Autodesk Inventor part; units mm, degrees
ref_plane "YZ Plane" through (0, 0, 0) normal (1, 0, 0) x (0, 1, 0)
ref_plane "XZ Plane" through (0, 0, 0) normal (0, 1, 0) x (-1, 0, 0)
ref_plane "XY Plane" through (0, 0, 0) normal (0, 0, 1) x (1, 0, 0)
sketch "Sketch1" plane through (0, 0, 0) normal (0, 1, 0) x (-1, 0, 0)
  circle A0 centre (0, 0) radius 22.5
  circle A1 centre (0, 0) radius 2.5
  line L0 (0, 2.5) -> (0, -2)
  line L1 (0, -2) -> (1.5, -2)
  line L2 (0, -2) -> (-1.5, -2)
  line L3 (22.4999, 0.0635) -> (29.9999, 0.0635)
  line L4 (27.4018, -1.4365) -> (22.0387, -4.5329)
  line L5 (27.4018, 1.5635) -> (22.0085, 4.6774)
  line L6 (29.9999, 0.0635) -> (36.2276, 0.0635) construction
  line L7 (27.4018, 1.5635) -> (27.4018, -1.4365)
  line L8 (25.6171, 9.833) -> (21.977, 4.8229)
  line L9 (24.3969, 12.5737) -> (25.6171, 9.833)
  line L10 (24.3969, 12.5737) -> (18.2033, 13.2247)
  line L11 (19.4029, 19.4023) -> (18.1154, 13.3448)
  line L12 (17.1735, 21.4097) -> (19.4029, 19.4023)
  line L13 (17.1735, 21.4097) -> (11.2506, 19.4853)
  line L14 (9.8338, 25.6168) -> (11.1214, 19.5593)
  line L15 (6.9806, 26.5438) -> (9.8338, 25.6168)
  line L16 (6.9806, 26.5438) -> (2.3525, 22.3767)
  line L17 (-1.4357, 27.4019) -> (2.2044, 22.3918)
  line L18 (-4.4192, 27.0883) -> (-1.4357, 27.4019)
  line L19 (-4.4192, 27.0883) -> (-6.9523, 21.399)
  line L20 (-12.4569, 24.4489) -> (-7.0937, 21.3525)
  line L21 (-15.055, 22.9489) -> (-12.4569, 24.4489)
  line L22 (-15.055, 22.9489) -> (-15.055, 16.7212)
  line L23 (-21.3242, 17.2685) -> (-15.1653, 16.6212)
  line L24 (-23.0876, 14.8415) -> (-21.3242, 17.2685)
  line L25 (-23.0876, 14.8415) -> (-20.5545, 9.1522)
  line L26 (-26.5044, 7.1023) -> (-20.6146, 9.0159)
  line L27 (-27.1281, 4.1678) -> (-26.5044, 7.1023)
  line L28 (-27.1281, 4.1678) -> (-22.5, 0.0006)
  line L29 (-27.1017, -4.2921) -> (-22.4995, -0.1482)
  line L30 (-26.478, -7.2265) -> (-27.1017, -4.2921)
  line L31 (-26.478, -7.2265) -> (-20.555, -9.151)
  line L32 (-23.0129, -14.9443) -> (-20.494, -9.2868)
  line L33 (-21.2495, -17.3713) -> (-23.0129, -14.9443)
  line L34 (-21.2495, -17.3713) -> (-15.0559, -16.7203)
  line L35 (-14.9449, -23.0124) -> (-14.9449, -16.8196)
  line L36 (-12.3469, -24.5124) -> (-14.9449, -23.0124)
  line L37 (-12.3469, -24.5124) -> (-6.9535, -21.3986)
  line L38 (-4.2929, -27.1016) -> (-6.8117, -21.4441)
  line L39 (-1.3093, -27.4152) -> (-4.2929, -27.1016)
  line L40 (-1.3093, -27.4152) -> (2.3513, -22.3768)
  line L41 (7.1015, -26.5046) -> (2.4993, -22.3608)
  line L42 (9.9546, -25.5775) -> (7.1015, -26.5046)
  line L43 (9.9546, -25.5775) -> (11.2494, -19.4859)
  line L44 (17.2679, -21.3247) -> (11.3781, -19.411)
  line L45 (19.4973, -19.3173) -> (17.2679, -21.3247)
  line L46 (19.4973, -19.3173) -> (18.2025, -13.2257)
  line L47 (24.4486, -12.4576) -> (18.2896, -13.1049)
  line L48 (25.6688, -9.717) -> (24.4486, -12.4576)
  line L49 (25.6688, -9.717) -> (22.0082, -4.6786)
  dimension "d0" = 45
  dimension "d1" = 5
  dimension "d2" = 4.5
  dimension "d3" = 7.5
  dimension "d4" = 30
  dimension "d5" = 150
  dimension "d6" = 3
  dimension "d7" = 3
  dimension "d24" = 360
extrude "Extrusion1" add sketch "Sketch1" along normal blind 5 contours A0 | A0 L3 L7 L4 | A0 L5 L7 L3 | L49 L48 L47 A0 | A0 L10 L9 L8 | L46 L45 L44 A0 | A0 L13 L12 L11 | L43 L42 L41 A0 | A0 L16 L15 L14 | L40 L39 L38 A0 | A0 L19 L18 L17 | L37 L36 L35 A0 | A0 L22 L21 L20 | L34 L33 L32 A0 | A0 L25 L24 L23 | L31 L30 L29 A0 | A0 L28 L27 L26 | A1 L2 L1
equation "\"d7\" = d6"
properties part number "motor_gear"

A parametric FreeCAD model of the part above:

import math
import FreeCAD as App
import Part
import Sketcher

V = App.Vector
Q = App.Units.Quantity

doc = App.newDocument("Part")
body = doc.addObject("PartDesign::Body", "Body")

# Sketch on XZ plane
sketch1 = body.newObject("Sketcher::SketchObject", "Sketch")
sketch1.AttachmentSupport = (doc.getObject("XZ_Plane"), [""])
sketch1.MapMode = "FlatFace"
sketch1.addGeometry(Part.ArcOfCircle(Part.Circle(V(0, 0, 0), V(0, 0, 1), 22.5), math.radians(-168.38), math.radians(-168)), False)
sketch1.addGeometry(Part.LineSegment(V(-22.04, -4.53, 0), V(-27.4, -1.44, 0)), False)
sketch1.addGeometry(Part.LineSegment(V(-27.4, -1.44, 0), V(-27.4, 1.56, 0)), False)
sketch1.addGeometry(Part.LineSegment(V(-27.4, 1.56, 0), V(-22.01, 4.68, 0)), False)
sketch1.addGeometry(Part.ArcOfCircle(Part.Circle(V(0, 0, 0), V(0, 0, 1), 22.5), math.radians(167.62), math.radians(168)), False)
sketch1.addGeometry(Part.LineSegment(V(-21.98, 4.82, 0), V(-25.62, 9.83, 0)), False)
sketch1.addGeometry(Part.LineSegment(V(-25.62, 9.83, 0), V(-24.4, 12.57, 0)), False)
sketch1.addGeometry(Part.LineSegment(V(-24.4, 12.57, 0), V(-18.2, 13.22, 0)), False)
sketch1.addGeometry(Part.ArcOfCircle(Part.Circle(V(0, 0, 0), V(0, 0, 1), 22.5), math.radians(143.62), math.radians(144)), False)
sketch1.addGeometry(Part.LineSegment(V(-18.12, 13.34, 0), V(-19.4, 19.4, 0)), False)
sketch1.addGeometry(Part.LineSegment(V(-19.4, 19.4, 0), V(-17.17, 21.41, 0)), False)
sketch1.addGeometry(Part.LineSegment(V(-17.17, 21.41, 0), V(-11.25, 19.49, 0)), False)
sketch1.addGeometry(Part.ArcOfCircle(Part.Circle(V(0, 0, 0), V(0, 0, 1), 22.5), math.radians(119.62), math.radians(120)), False)
sketch1.addGeometry(Part.LineSegment(V(-11.12, 19.56, 0), V(-9.83, 25.62, 0)), False)
sketch1.addGeometry(Part.LineSegment(V(-9.83, 25.62, 0), V(-6.98, 26.54, 0)), False)
sketch1.addGeometry(Part.LineSegment(V(-6.98, 26.54, 0), V(-2.35, 22.38, 0)), False)
sketch1.addGeometry(Part.ArcOfCircle(Part.Circle(V(0, 0, 0), V(0, 0, 1), 22.5), math.radians(95.62), math.radians(96)), False)
sketch1.addGeometry(Part.LineSegment(V(-2.2, 22.39, 0), V(1.44, 27.4, 0)), False)
sketch1.addGeometry(Part.LineSegment(V(1.44, 27.4, 0), V(4.42, 27.09, 0)), False)
sketch1.addGeometry(Part.LineSegment(V(4.42, 27.09, 0), V(6.95, 21.4, 0)), False)
sketch1.addGeometry(Part.ArcOfCircle(Part.Circle(V(0, 0, 0), V(0, 0, 1), 22.5), math.radians(71.62), math.radians(72)), False)
sketch1.addGeometry(Part.LineSegment(V(7.09, 21.35, 0), V(12.46, 24.45, 0)), False)
sketch1.addGeometry(Part.LineSegment(V(12.46, 24.45, 0), V(15.05, 22.95, 0)), False)
sketch1.addGeometry(Part.LineSegment(V(15.05, 22.95, 0), V(15.05, 16.72, 0)), False)
sketch1.addGeometry(Part.ArcOfCircle(Part.Circle(V(0, 0, 0), V(0, 0, 1), 22.5), math.radians(47.62), math.radians(48)), False)
sketch1.addGeometry(Part.LineSegment(V(15.17, 16.62, 0), V(21.32, 17.27, 0)), False)
sketch1.addGeometry(Part.LineSegment(V(21.32, 17.27, 0), V(23.09, 14.84, 0)), False)
sketch1.addGeometry(Part.LineSegment(V(23.09, 14.84, 0), V(20.55, 9.15, 0)), False)
sketch1.addGeometry(Part.ArcOfCircle(Part.Circle(V(0, 0, 0), V(0, 0, 1), 22.5), math.radians(23.62), math.radians(24)), False)
sketch1.addGeometry(Part.LineSegment(V(20.61, 9.02, 0), V(26.5, 7.1, 0)), False)
sketch1.addGeometry(Part.LineSegment(V(26.5, 7.1, 0), V(27.13, 4.17, 0)), False)
sketch1.addGeometry(Part.LineSegment(V(27.13, 4.17, 0), V(22.5, 0, 0)), False)
sketch1.addGeometry(Part.ArcOfCircle(Part.Circle(V(0, 0, 0), V(0, 0, 1), 22.5), math.radians(-0.38), math.radians(0)), False)
sketch1.addGeometry(Part.LineSegment(V(22.5, -0.15, 0), V(27.1, -4.29, 0)), False)
sketch1.addGeometry(Part.LineSegment(V(27.1, -4.29, 0), V(26.48, -7.23, 0)), False)
sketch1.addGeometry(Part.LineSegment(V(26.48, -7.23, 0), V(20.55, -9.15, 0)), False)
sketch1.addGeometry(Part.ArcOfCircle(Part.Circle(V(0, 0, 0), V(0, 0, 1), 22.5), math.radians(-24.38), math.radians(-24)), False)
sketch1.addGeometry(Part.LineSegment(V(20.49, -9.29, 0), V(23.01, -14.94, 0)), False)
sketch1.addGeometry(Part.LineSegment(V(23.01, -14.94, 0), V(21.25, -17.37, 0)), False)
sketch1.addGeometry(Part.LineSegment(V(21.25, -17.37, 0), V(15.06, -16.72, 0)), False)
sketch1.addGeometry(Part.ArcOfCircle(Part.Circle(V(0, 0, 0), V(0, 0, 1), 22.5), math.radians(-48.38), math.radians(-48)), False)
sketch1.addGeometry(Part.LineSegment(V(14.94, -16.82, 0), V(14.94, -23.01, 0)), False)
sketch1.addGeometry(Part.LineSegment(V(14.94, -23.01, 0), V(12.35, -24.51, 0)), False)
sketch1.addGeometry(Part.LineSegment(V(12.35, -24.51, 0), V(6.95, -21.4, 0)), False)
sketch1.addGeometry(Part.ArcOfCircle(Part.Circle(V(0, 0, 0), V(0, 0, 1), 22.5), math.radians(-72.38), math.radians(-72)), False)
sketch1.addGeometry(Part.LineSegment(V(6.81, -21.44, 0), V(4.29, -27.1, 0)), False)
sketch1.addGeometry(Part.LineSegment(V(4.29, -27.1, 0), V(1.31, -27.42, 0)), False)
sketch1.addGeometry(Part.LineSegment(V(1.31, -27.42, 0), V(-2.35, -22.38, 0)), False)
sketch1.addGeometry(Part.ArcOfCircle(Part.Circle(V(0, 0, 0), V(0, 0, 1), 22.5), math.radians(-96.38), math.radians(-96)), False)
sketch1.addGeometry(Part.LineSegment(V(-2.5, -22.36, 0), V(-7.1, -26.5, 0)), False)
sketch1.addGeometry(Part.LineSegment(V(-7.1, -26.5, 0), V(-9.95, -25.58, 0)), False)
sketch1.addGeometry(Part.LineSegment(V(-9.95, -25.58, 0), V(-11.25, -19.49, 0)), False)
sketch1.addGeometry(Part.ArcOfCircle(Part.Circle(V(0, 0, 0), V(0, 0, 1), 22.5), math.radians(-120.38), math.radians(-120)), False)
sketch1.addGeometry(Part.LineSegment(V(-11.38, -19.41, 0), V(-17.27, -21.32, 0)), False)
sketch1.addGeometry(Part.LineSegment(V(-17.27, -21.32, 0), V(-19.5, -19.32, 0)), False)
sketch1.addGeometry(Part.LineSegment(V(-19.5, -19.32, 0), V(-18.2, -13.23, 0)), False)
sketch1.addGeometry(Part.ArcOfCircle(Part.Circle(V(0, 0, 0), V(0, 0, 1), 22.5), math.radians(-144.38), math.radians(-144)), False)
sketch1.addGeometry(Part.LineSegment(V(-18.29, -13.1, 0), V(-24.45, -12.46, 0)), False)
sketch1.addGeometry(Part.LineSegment(V(-24.45, -12.46, 0), V(-25.67, -9.72, 0)), False)
sketch1.addGeometry(Part.LineSegment(V(-25.67, -9.72, 0), V(-22.01, -4.68, 0)), False)
sketch1.addGeometry(Part.LineSegment(V(-1.5, -2, 0), V(1.5, -2, 0)), False)
sketch1.addGeometry(Part.ArcOfCircle(Part.Circle(V(0, 0, 0), V(0, 0, 1), 2.5), math.radians(-53), math.radians(233)), False)
sketch1.addConstraint(Sketcher.Constraint("Coincident", 0, 1, 1, 1))
sketch1.addConstraint(Sketcher.Constraint("Coincident", 1, 2, 2, 1))
sketch1.addConstraint(Sketcher.Constraint("Coincident", 2, 2, 3, 1))
sketch1.addConstraint(Sketcher.Constraint("Coincident", 3, 2, 4, 2))
sketch1.addConstraint(Sketcher.Constraint("Coincident", 4, 1, 5, 1))
sketch1.addConstraint(Sketcher.Constraint("Coincident", 5, 2, 6, 1))
sketch1.addConstraint(Sketcher.Constraint("Coincident", 6, 2, 7, 1))
sketch1.addConstraint(Sketcher.Constraint("Coincident", 7, 2, 8, 2))
sketch1.addConstraint(Sketcher.Constraint("Coincident", 8, 1, 9, 1))
sketch1.addConstraint(Sketcher.Constraint("Coincident", 9, 2, 10, 1))
sketch1.addConstraint(Sketcher.Constraint("Coincident", 10, 2, 11, 1))
sketch1.addConstraint(Sketcher.Constraint("Coincident", 11, 2, 12, 2))
sketch1.addConstraint(Sketcher.Constraint("Coincident", 12, 1, 13, 1))
sketch1.addConstraint(Sketcher.Constraint("Coincident", 13, 2, 14, 1))
sketch1.addConstraint(Sketcher.Constraint("Coincident", 14, 2, 15, 1))
sketch1.addConstraint(Sketcher.Constraint("Coincident", 15, 2, 16, 2))
sketch1.addConstraint(Sketcher.Constraint("Coincident", 16, 1, 17, 1))
sketch1.addConstraint(Sketcher.Constraint("Coincident", 17, 2, 18, 1))
sketch1.addConstraint(Sketcher.Constraint("Coincident", 18, 2, 19, 1))
sketch1.addConstraint(Sketcher.Constraint("Coincident", 19, 2, 20, 2))
sketch1.addConstraint(Sketcher.Constraint("Coincident", 20, 1, 21, 1))
sketch1.addConstraint(Sketcher.Constraint("Coincident", 21, 2, 22, 1))
sketch1.addConstraint(Sketcher.Constraint("Coincident", 22, 2, 23, 1))
sketch1.addConstraint(Sketcher.Constraint("Coincident", 23, 2, 24, 2))
sketch1.addConstraint(Sketcher.Constraint("Coincident", 24, 1, 25, 1))
sketch1.addConstraint(Sketcher.Constraint("Coincident", 25, 2, 26, 1))
sketch1.addConstraint(Sketcher.Constraint("Coincident", 26, 2, 27, 1))
sketch1.addConstraint(Sketcher.Constraint("Coincident", 27, 2, 28, 2))
sketch1.addConstraint(Sketcher.Constraint("Coincident", 28, 1, 29, 1))
sketch1.addConstraint(Sketcher.Constraint("Coincident", 29, 2, 30, 1))
sketch1.addConstraint(Sketcher.Constraint("Coincident", 30, 2, 31, 1))
sketch1.addConstraint(Sketcher.Constraint("Coincident", 31, 2, 32, 2))
sketch1.addConstraint(Sketcher.Constraint("Coincident", 32, 1, 33, 1))
sketch1.addConstraint(Sketcher.Constraint("Coincident", 33, 2, 34, 1))
sketch1.addConstraint(Sketcher.Constraint("Coincident", 34, 2, 35, 1))
sketch1.addConstraint(Sketcher.Constraint("Coincident", 35, 2, 36, 2))
sketch1.addConstraint(Sketcher.Constraint("Coincident", 36, 1, 37, 1))
sketch1.addConstraint(Sketcher.Constraint("Coincident", 37, 2, 38, 1))
sketch1.addConstraint(Sketcher.Constraint("Coincident", 38, 2, 39, 1))
sketch1.addConstraint(Sketcher.Constraint("Coincident", 39, 2, 40, 2))
sketch1.addConstraint(Sketcher.Constraint("Coincident", 40, 1, 41, 1))
sketch1.addConstraint(Sketcher.Constraint("Coincident", 41, 2, 42, 1))
sketch1.addConstraint(Sketcher.Constraint("Coincident", 42, 2, 43, 1))
sketch1.addConstraint(Sketcher.Constraint("Coincident", 43, 2, 44, 2))
sketch1.addConstraint(Sketcher.Constraint("Coincident", 44, 1, 45, 1))
sketch1.addConstraint(Sketcher.Constraint("Coincident", 45, 2, 46, 1))
sketch1.addConstraint(Sketcher.Constraint("Coincident", 46, 2, 47, 1))
sketch1.addConstraint(Sketcher.Constraint("Coincident", 47, 2, 48, 2))
sketch1.addConstraint(Sketcher.Constraint("Coincident", 48, 1, 49, 1))
sketch1.addConstraint(Sketcher.Constraint("Coincident", 49, 2, 50, 1))
sketch1.addConstraint(Sketcher.Constraint("Coincident", 50, 2, 51, 1))
sketch1.addConstraint(Sketcher.Constraint("Coincident", 51, 2, 52, 2))
sketch1.addConstraint(Sketcher.Constraint("Coincident", 52, 1, 53, 1))
sketch1.addConstraint(Sketcher.Constraint("Coincident", 53, 2, 54, 1))
sketch1.addConstraint(Sketcher.Constraint("Coincident", 54, 2, 55, 1))
sketch1.addConstraint(Sketcher.Constraint("Coincident", 55, 2, 56, 2))
sketch1.addConstraint(Sketcher.Constraint("Coincident", 56, 1, 57, 1))
sketch1.addConstraint(Sketcher.Constraint("Coincident", 57, 2, 58, 1))
sketch1.addConstraint(Sketcher.Constraint("Coincident", 58, 2, 59, 1))
sketch1.addConstraint(Sketcher.Constraint("Coincident", 59, 2, 0, 2))
sketch1.addConstraint(Sketcher.Constraint("Coincident", 60, 1, 61, 2))
sketch1.addConstraint(Sketcher.Constraint("Coincident", 61, 1, 60, 2))
sketch1.addConstraint(Sketcher.Constraint("Vertical", 2))
sketch1.addConstraint(Sketcher.Constraint("Vertical", 23))
sketch1.addConstraint(Sketcher.Constraint("Vertical", 41))
sketch1.addConstraint(Sketcher.Constraint("Horizontal", 60))
sketch1.addConstraint(Sketcher.Constraint("Coincident", 0, 3, -1, 1))
sketch1.addConstraint(Sketcher.Constraint("Coincident", 4, 3, -1, 1))
sketch1.addConstraint(Sketcher.Constraint("Coincident", 8, 3, -1, 1))
sketch1.addConstraint(Sketcher.Constraint("Coincident", 12, 3, -1, 1))
sketch1.addConstraint(Sketcher.Constraint("Coincident", 16, 3, -1, 1))
sketch1.addConstraint(Sketcher.Constraint("Coincident", 20, 3, -1, 1))
sketch1.addConstraint(Sketcher.Constraint("Coincident", 24, 3, -1, 1))
sketch1.addConstraint(Sketcher.Constraint("Coincident", 28, 3, -1, 1))
sketch1.addConstraint(Sketcher.Constraint("Coincident", 32, 3, -1, 1))
sketch1.addConstraint(Sketcher.Constraint("Coincident", 36, 3, -1, 1))
sketch1.addConstraint(Sketcher.Constraint("Coincident", 40, 3, -1, 1))
sketch1.addConstraint(Sketcher.Constraint("Coincident", 44, 3, -1, 1))
sketch1.addConstraint(Sketcher.Constraint("Coincident", 48, 3, -1, 1))
sketch1.addConstraint(Sketcher.Constraint("Coincident", 52, 3, -1, 1))
sketch1.addConstraint(Sketcher.Constraint("Coincident", 56, 3, -1, 1))
sketch1.addConstraint(Sketcher.Constraint("Coincident", 61, 3, -1, 1))
sketch1.addConstraint(Sketcher.Constraint("Equal", 0, 4))
sketch1.addConstraint(Sketcher.Constraint("Equal", 4, 8))
sketch1.addConstraint(Sketcher.Constraint("Equal", 8, 12))
sketch1.addConstraint(Sketcher.Constraint("Equal", 12, 16))
sketch1.addConstraint(Sketcher.Constraint("Equal", 16, 20))
sketch1.addConstraint(Sketcher.Constraint("Equal", 20, 24))
sketch1.addConstraint(Sketcher.Constraint("Equal", 24, 28))
sketch1.addConstraint(Sketcher.Constraint("Equal", 28, 32))
sketch1.addConstraint(Sketcher.Constraint("Equal", 32, 36))
sketch1.addConstraint(Sketcher.Constraint("Equal", 36, 40))
sketch1.addConstraint(Sketcher.Constraint("Equal", 40, 44))
sketch1.addConstraint(Sketcher.Constraint("Equal", 44, 48))
sketch1.addConstraint(Sketcher.Constraint("Equal", 48, 52))
sketch1.addConstraint(Sketcher.Constraint("Equal", 52, 56))
sketch1.addConstraint(Sketcher.Constraint("Parallel", 3, 21))
sketch1.addConstraint(Sketcher.Constraint("Parallel", 1, 22))
sketch1.addConstraint(Sketcher.Constraint("Parallel", 7, 25))
sketch1.addConstraint(Sketcher.Constraint("Parallel", 5, 26))
sketch1.addConstraint(Sketcher.Constraint("Parallel", 6, 27))
sketch1.addConstraint(Sketcher.Constraint("Parallel", 11, 29))
sketch1.addConstraint(Sketcher.Constraint("Parallel", 9, 30))
sketch1.addConstraint(Sketcher.Constraint("Parallel", 10, 31))
sketch1.addConstraint(Sketcher.Constraint("Parallel", 15, 33))
sketch1.addConstraint(Sketcher.Constraint("Parallel", 13, 34))
sketch1.addConstraint(Sketcher.Constraint("Parallel", 14, 35))
sketch1.addConstraint(Sketcher.Constraint("Parallel", 19, 37))
sketch1.addConstraint(Sketcher.Constraint("Parallel", 17, 38))
sketch1.addConstraint(Sketcher.Constraint("Parallel", 18, 39))
sketch1.addConstraint(Sketcher.Constraint("Parallel", 21, 42))
sketch1.addConstraint(Sketcher.Constraint("Parallel", 22, 43))
sketch1.addConstraint(Sketcher.Constraint("Parallel", 27, 45))
sketch1.addConstraint(Sketcher.Constraint("Parallel", 25, 46))
sketch1.addConstraint(Sketcher.Constraint("Parallel", 26, 47))
sketch1.addConstraint(Sketcher.Constraint("Parallel", 31, 49))
sketch1.addConstraint(Sketcher.Constraint("Parallel", 29, 50))
sketch1.addConstraint(Sketcher.Constraint("Parallel", 30, 51))
sketch1.addConstraint(Sketcher.Constraint("Parallel", 35, 53))
sketch1.addConstraint(Sketcher.Constraint("Parallel", 33, 54))
sketch1.addConstraint(Sketcher.Constraint("Parallel", 34, 55))
sketch1.addConstraint(Sketcher.Constraint("Parallel", 39, 57))
sketch1.addConstraint(Sketcher.Constraint("Parallel", 37, 58))
sketch1.addConstraint(Sketcher.Constraint("Parallel", 38, 59))
sketch1.addConstraint(Sketcher.Constraint("Equal", 60, 2))
sketch1.addConstraint(Sketcher.Constraint("Equal", 1, 5))
sketch1.addConstraint(Sketcher.Constraint("Equal", 3, 7))
sketch1.addConstraint(Sketcher.Constraint("Equal", 5, 9))
sketch1.addConstraint(Sketcher.Constraint("Equal", 6, 10))
sketch1.addConstraint(Sketcher.Constraint("Equal", 7, 11))
sketch1.addConstraint(Sketcher.Constraint("Equal", 9, 13))
sketch1.addConstraint(Sketcher.Constraint("Equal", 10, 14))
sketch1.addConstraint(Sketcher.Constraint("Equal", 11, 15))
sketch1.addConstraint(Sketcher.Constraint("Equal", 13, 17))
sketch1.addConstraint(Sketcher.Constraint("Equal", 14, 18))
sketch1.addConstraint(Sketcher.Constraint("Equal", 15, 19))
sketch1.addConstraint(Sketcher.Constraint("Equal", 17, 21))
sketch1.addConstraint(Sketcher.Constraint("Equal", 18, 22))
sketch1.addConstraint(Sketcher.Constraint("Equal", 21, 25))
sketch1.addConstraint(Sketcher.Constraint("Equal", 22, 26))
sketch1.addConstraint(Sketcher.Constraint("Equal", 19, 27))
sketch1.addConstraint(Sketcher.Constraint("Equal", 25, 29))
sketch1.addConstraint(Sketcher.Constraint("Equal", 26, 30))
sketch1.addConstraint(Sketcher.Constraint("Equal", 27, 31))
sketch1.addConstraint(Sketcher.Constraint("Equal", 29, 33))
sketch1.addConstraint(Sketcher.Constraint("Equal", 30, 34))
sketch1.addConstraint(Sketcher.Constraint("Equal", 31, 35))
sketch1.addConstraint(Sketcher.Constraint("Equal", 33, 37))
sketch1.addConstraint(Sketcher.Constraint("Equal", 34, 38))
sketch1.addConstraint(Sketcher.Constraint("Equal", 35, 39))
sketch1.addConstraint(Sketcher.Constraint("Equal", 38, 42))
sketch1.addConstraint(Sketcher.Constraint("Equal", 39, 43))
sketch1.addConstraint(Sketcher.Constraint("Equal", 37, 45))
sketch1.addConstraint(Sketcher.Constraint("Equal", 42, 46))
sketch1.addConstraint(Sketcher.Constraint("Equal", 43, 47))
sketch1.addConstraint(Sketcher.Constraint("Equal", 45, 49))
sketch1.addConstraint(Sketcher.Constraint("Equal", 46, 50))
sketch1.addConstraint(Sketcher.Constraint("Equal", 47, 51))
sketch1.addConstraint(Sketcher.Constraint("Equal", 49, 53))
sketch1.addConstraint(Sketcher.Constraint("Equal", 50, 54))
sketch1.addConstraint(Sketcher.Constraint("Equal", 51, 55))
sketch1.addConstraint(Sketcher.Constraint("Equal", 53, 57))
sketch1.addConstraint(Sketcher.Constraint("Equal", 54, 58))
sketch1.addConstraint(Sketcher.Constraint("Equal", 55, 59))
sketch1.addConstraint(Sketcher.Constraint("Radius", 0, 22.5))
sketch1.addConstraint(Sketcher.Constraint("Radius", 61, 2.5))
sketch1.addConstraint(Sketcher.Constraint("DistanceX", 60, 1, 60, 2, 3.0))
sketch1.addConstraint(Sketcher.Constraint("Angle", 1, Q("150 deg")))
sketch1.addConstraint(Sketcher.Constraint("Angle", 21, Q("29.9996 deg")))
sketch1.addConstraint(Sketcher.Constraint("Distance", 6, 3.0))
sketch1.addConstraint(Sketcher.Constraint("Angle", 5, Q("126.0004 deg")))
sketch1.addConstraint(Sketcher.Constraint("Angle", 6, Q("66.0007 deg")))
sketch1.addConstraint(Sketcher.Constraint("Angle", 7, Q("6.0002 deg")))
sketch1.addConstraint(Sketcher.Constraint("Angle", 9, Q("101.9994 deg")))
sketch1.addConstraint(Sketcher.Constraint("Angle", 10, Q("42.0006 deg")))
sketch1.addConstraint(Sketcher.Constraint("Angle", 11, Q("-17.9994 deg")))
sketch1.addConstraint(Sketcher.Constraint("Angle", 13, Q("77.9997 deg")))
sketch1.addConstraint(Sketcher.Constraint("Angle", 14, Q("17.999 deg")))
sketch1.addConstraint(Sketcher.Constraint("Angle", 15, Q("-41.9996 deg")))
sketch1.addConstraint(Sketcher.Constraint("Angle", 17, Q("53.9996 deg")))
sketch1.addConstraint(Sketcher.Constraint("Angle", 18, Q("-6.0004 deg")))
sketch1.addConstraint(Sketcher.Constraint("Angle", 19, Q("-65.9995 deg")))
sketch1.addConstraint(Sketcher.Constraint("Distance", 33, 6.193))
sketch1.addConstraint(Sketcher.Constraint("DistanceY", 23, 2, 23, 1, 6.2277))
sketch1.addConstraint(Sketcher.Constraint("DistanceY", 41, 2, 41, 1, 6.1928))
sketch1.addConstraint(Sketcher.Constraint("DistanceY", 0, 1, -1, 1, 4.533))
pad1 = body.newObject("PartDesign::Pad", "Pad")
pad1.Profile = sketch1
pad1.Length = 5
pad1.Reversed = True

doc.recompute()
